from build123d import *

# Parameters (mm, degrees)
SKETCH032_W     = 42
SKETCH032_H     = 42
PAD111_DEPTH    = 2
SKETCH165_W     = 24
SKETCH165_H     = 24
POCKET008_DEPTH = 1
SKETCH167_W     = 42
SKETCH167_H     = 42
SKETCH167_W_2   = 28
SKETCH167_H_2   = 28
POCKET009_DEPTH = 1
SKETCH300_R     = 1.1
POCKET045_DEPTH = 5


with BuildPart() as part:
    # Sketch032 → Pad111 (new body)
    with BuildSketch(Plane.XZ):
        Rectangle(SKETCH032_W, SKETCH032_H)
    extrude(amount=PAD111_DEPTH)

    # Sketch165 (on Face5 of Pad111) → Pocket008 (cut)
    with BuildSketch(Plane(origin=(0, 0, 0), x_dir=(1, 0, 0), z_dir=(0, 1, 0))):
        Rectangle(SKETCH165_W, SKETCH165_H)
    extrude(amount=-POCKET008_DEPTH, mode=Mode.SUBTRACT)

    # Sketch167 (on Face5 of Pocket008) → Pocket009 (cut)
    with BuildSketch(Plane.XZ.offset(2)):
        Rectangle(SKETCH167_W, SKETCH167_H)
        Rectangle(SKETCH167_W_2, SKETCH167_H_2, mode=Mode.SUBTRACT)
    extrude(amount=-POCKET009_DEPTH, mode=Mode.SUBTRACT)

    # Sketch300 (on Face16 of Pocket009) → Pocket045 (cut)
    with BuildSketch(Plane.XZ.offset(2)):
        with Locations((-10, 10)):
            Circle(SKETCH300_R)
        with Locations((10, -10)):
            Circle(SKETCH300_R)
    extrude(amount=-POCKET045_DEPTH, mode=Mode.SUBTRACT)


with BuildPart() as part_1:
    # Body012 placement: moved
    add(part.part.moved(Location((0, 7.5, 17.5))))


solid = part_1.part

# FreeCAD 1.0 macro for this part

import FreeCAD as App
import Part
import Sketcher

doc = App.newDocument("Part")
body = doc.addObject("PartDesign::Body", "Body")

# Sketch on XZ plane
sketch1 = doc.addObject("Sketcher::SketchObject", "Sketch")
body.addObject(sketch1)
sketch1.AttachmentSupport = (doc.XZ_Plane, [""])
sketch1.MapMode = "FlatFace"
sketch1.addGeometry([
    Part.LineSegment(App.Vector(-21, 21, 0), App.Vector(-21, -21, 0)),
    Part.LineSegment(App.Vector(-21, -21, 0), App.Vector(21, -21, 0)),
    Part.LineSegment(App.Vector(21, -21, 0), App.Vector(21, 21, 0)),
    Part.LineSegment(App.Vector(21, 21, 0), App.Vector(-21, 21, 0)),
], False)
sketch1.addConstraint([
    Sketcher.Constraint("Coincident", 0, 2, 1, 1),
    Sketcher.Constraint("Coincident", 1, 2, 2, 1),
    Sketcher.Constraint("Coincident", 2, 2, 3, 1),
    Sketcher.Constraint("Coincident", 3, 2, 0, 1),
    Sketcher.Constraint("Vertical", 0),
    Sketcher.Constraint("Horizontal", 1),
    Sketcher.Constraint("Vertical", 2),
    Sketcher.Constraint("Horizontal", 3),
    Sketcher.Constraint("Symmetric", 0, 2, 2, 2, -1, 1),
    Sketcher.Constraint("Equal", 3, 0),
    Sketcher.Constraint("DistanceX", 1, 1, 1, 2, 42.0),
])
pad1 = doc.addObject("PartDesign::Pad", "Pad")
body.addObject(pad1)
pad1.Profile = sketch1
pad1.Length = 2

# Sketch on XZ plane
sketch2 = doc.addObject("Sketcher::SketchObject", "Sketch001")
body.addObject(sketch2)
sketch2.AttachmentSupport = (doc.XZ_Plane, [""])
sketch2.MapMode = "FlatFace"
sketch2.addGeometry([
    Part.LineSegment(App.Vector(-12, -12, 0), App.Vector(-12, 12, 0)),
    Part.LineSegment(App.Vector(-12, 12, 0), App.Vector(12, 12, 0)),
    Part.LineSegment(App.Vector(12, 12, 0), App.Vector(12, -12, 0)),
    Part.LineSegment(App.Vector(12, -12, 0), App.Vector(-12, -12, 0)),
], False)
sketch2.addConstraint([
    Sketcher.Constraint("Coincident", 0, 2, 1, 1),
    Sketcher.Constraint("Coincident", 1, 2, 2, 1),
    Sketcher.Constraint("Coincident", 2, 2, 3, 1),
    Sketcher.Constraint("Coincident", 3, 2, 0, 1),
    Sketcher.Constraint("Vertical", 0),
    Sketcher.Constraint("Horizontal", 1),
    Sketcher.Constraint("Vertical", 2),
    Sketcher.Constraint("Horizontal", 3),
    Sketcher.Constraint("Symmetric", 0, 2, 2, 2, -1, 1),
    Sketcher.Constraint("Equal", 3, 0),
    Sketcher.Constraint("DistanceX", 1, 1, 1, 2, 24.0),
])
pocket1 = doc.addObject("PartDesign::Pocket", "Pocket")
body.addObject(pocket1)
pocket1.Profile = sketch2
pocket1.Length = 1
pocket1.Reversed = True

# Sketch on XZ plane
sketch3 = doc.addObject("Sketcher::SketchObject", "Sketch002")
body.addObject(sketch3)
sketch3.AttachmentSupport = (doc.XZ_Plane, [""])
sketch3.MapMode = "FlatFace"
sketch3.AttachmentOffset = App.Placement(App.Vector(0, 0, 2), App.Rotation())
sketch3.addGeometry([
    Part.LineSegment(App.Vector(-21, 21, 0), App.Vector(-21, -21, 0)),  # 0
    Part.LineSegment(App.Vector(-21, -21, 0), App.Vector(21, -21, 0)),  # 1
    Part.LineSegment(App.Vector(21, -21, 0), App.Vector(21, 21, 0)),  # 2
    Part.LineSegment(App.Vector(21, 21, 0), App.Vector(-21, 21, 0)),  # 3
    Part.LineSegment(App.Vector(14, -14, 0), App.Vector(-14, -14, 0)),  # 4
    Part.LineSegment(App.Vector(-14, -14, 0), App.Vector(-14, 14, 0)),  # 5
    Part.LineSegment(App.Vector(-14, 14, 0), App.Vector(14, 14, 0)),  # 6
    Part.LineSegment(App.Vector(14, 14, 0), App.Vector(14, -14, 0)),  # 7
], False)
sketch3.addConstraint([
    Sketcher.Constraint("Coincident", 0, 2, 1, 1),
    Sketcher.Constraint("Coincident", 1, 2, 2, 1),
    Sketcher.Constraint("Coincident", 2, 2, 3, 1),
    Sketcher.Constraint("Coincident", 3, 2, 0, 1),
    Sketcher.Constraint("Coincident", 4, 2, 5, 1),
    Sketcher.Constraint("Coincident", 5, 2, 6, 1),
    Sketcher.Constraint("Coincident", 6, 2, 7, 1),
    Sketcher.Constraint("Coincident", 7, 2, 4, 1),
    Sketcher.Constraint("Vertical", 0),
    Sketcher.Constraint("Horizontal", 1),
    Sketcher.Constraint("Vertical", 2),
    Sketcher.Constraint("Horizontal", 3),
    Sketcher.Constraint("Horizontal", 4),
    Sketcher.Constraint("Vertical", 5),
    Sketcher.Constraint("Horizontal", 6),
    Sketcher.Constraint("Vertical", 7),
    Sketcher.Constraint("Symmetric", 0, 2, 2, 2, -1, 1),
    Sketcher.Constraint("Symmetric", 4, 2, 6, 2, -1, 1),
    Sketcher.Constraint("Equal", 3, 0),
    Sketcher.Constraint("Equal", 6, 5),
    Sketcher.Constraint("DistanceX", 1, 1, 1, 2, 42.0),
    Sketcher.Constraint("DistanceX", 4, 2, 4, 1, 28.0),
])
pocket2 = doc.addObject("PartDesign::Pocket", "Pocket001")
body.addObject(pocket2)
pocket2.Profile = sketch3
pocket2.Length = 1

# Sketch on XZ plane
sketch4 = doc.addObject("Sketcher::SketchObject", "Sketch003")
body.addObject(sketch4)
sketch4.AttachmentSupport = (doc.XZ_Plane, [""])
sketch4.MapMode = "FlatFace"
sketch4.AttachmentOffset = App.Placement(App.Vector(0, 0, 2), App.Rotation())
sketch4.addGeometry([
    Part.Circle(App.Vector(-10, 10, 0), App.Vector(0, 0, 1), 1.1),
    Part.Circle(App.Vector(10, -10, 0), App.Vector(0, 0, 1), 1.1),
], False)
sketch4.addConstraint([
    Sketcher.Constraint("Equal", 0, 1),
    Sketcher.Constraint("Symmetric", 0, 3, 1, 3, -1, 1),
    Sketcher.Constraint("Diameter", 0, 2.2),
    Sketcher.Constraint("DistanceX", 0, 3, -1, 1, 10.0),
    Sketcher.Constraint("DistanceY", -1, 1, 0, 3, 10.0),
])
pocket3 = doc.addObject("PartDesign::Pocket", "Pocket002")
body.addObject(pocket3)
pocket3.Profile = sketch4
pocket3.Length = 5
body2 = doc.addObject("PartDesign::Body", "Body001")
doc.recompute()

body.Placement = App.Placement(App.Vector(0, 7.5, 17.5), App.Rotation(App.Vector(0, 0, 1), 0))
boolean = doc.addObject("PartDesign::Boolean", "Boolean")
body2.addObject(boolean)
boolean.Type = "Fuse"
boolean.addObjects([body])

doc.recompute()
